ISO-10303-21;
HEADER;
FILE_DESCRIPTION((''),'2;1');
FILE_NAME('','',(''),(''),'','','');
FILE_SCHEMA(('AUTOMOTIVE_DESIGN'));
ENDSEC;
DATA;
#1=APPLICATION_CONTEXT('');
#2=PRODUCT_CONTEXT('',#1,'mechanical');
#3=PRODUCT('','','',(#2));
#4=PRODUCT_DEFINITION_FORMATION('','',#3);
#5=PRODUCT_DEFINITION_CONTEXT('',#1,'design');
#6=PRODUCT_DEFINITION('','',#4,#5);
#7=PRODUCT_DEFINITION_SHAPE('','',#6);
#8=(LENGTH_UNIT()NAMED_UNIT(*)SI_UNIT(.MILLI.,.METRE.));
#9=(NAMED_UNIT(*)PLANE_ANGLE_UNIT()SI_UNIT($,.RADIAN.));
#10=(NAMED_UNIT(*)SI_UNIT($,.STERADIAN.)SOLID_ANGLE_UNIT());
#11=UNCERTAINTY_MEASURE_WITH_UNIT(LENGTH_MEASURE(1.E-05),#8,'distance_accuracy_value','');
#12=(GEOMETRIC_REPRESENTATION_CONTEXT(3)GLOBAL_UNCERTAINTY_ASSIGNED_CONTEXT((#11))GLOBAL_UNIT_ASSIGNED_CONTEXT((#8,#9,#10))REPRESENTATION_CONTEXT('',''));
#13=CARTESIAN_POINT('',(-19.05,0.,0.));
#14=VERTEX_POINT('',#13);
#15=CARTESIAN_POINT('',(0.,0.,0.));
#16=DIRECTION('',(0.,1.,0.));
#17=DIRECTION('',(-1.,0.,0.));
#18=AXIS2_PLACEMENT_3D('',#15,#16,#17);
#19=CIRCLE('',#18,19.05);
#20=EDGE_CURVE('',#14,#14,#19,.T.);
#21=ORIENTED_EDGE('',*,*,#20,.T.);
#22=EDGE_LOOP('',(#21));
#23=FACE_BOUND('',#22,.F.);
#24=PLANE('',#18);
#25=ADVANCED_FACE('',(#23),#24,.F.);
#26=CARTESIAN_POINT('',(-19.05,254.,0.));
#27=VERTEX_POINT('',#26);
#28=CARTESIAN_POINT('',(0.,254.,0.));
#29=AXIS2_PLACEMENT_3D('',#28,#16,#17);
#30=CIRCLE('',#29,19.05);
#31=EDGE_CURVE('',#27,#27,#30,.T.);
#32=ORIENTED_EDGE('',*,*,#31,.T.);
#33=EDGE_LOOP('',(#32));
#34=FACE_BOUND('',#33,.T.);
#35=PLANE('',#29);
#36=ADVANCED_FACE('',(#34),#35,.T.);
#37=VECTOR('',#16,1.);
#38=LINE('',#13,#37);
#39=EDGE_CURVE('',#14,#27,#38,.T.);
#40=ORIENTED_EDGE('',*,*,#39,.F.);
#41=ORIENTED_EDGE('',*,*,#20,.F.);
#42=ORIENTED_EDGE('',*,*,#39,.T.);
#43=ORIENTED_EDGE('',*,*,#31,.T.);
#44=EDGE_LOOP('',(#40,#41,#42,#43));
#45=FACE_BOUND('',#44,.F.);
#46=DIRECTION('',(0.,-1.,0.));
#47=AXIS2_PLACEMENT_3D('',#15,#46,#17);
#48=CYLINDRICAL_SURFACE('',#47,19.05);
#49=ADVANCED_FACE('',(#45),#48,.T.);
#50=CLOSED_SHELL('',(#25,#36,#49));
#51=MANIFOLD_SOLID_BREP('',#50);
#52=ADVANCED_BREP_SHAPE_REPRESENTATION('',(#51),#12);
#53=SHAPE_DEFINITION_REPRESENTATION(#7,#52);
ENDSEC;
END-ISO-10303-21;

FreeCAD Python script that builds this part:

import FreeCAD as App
import Part
import Sketcher
Q = App.Units.Quantity

doc = App.newDocument("Part")
body = doc.addObject("PartDesign::Body", "Body")

# Sketch on XZ plane
sketch1 = body.newObject("Sketcher::SketchObject", "Sketch")
sketch1.AttachmentSupport = (doc.getObject("XZ_Plane"), [""])
sketch1.MapMode = "FlatFace"
sketch1.addGeometry(Part.Circle(App.Vector(0, 0, 0), App.Vector(0, 0, 1), 19), False)
sketch1.addConstraint([
    Sketcher.Constraint("Coincident", 0, 3, -1, 1),
    Sketcher.Constraint("Diameter", 0, Q("1.5 in")),
])
pad1 = body.newObject("PartDesign::Pad", "Pad")
pad1.Profile = sketch1
pad1.Length = Q("10 in")
pad1.Reversed = True

doc.recompute()
